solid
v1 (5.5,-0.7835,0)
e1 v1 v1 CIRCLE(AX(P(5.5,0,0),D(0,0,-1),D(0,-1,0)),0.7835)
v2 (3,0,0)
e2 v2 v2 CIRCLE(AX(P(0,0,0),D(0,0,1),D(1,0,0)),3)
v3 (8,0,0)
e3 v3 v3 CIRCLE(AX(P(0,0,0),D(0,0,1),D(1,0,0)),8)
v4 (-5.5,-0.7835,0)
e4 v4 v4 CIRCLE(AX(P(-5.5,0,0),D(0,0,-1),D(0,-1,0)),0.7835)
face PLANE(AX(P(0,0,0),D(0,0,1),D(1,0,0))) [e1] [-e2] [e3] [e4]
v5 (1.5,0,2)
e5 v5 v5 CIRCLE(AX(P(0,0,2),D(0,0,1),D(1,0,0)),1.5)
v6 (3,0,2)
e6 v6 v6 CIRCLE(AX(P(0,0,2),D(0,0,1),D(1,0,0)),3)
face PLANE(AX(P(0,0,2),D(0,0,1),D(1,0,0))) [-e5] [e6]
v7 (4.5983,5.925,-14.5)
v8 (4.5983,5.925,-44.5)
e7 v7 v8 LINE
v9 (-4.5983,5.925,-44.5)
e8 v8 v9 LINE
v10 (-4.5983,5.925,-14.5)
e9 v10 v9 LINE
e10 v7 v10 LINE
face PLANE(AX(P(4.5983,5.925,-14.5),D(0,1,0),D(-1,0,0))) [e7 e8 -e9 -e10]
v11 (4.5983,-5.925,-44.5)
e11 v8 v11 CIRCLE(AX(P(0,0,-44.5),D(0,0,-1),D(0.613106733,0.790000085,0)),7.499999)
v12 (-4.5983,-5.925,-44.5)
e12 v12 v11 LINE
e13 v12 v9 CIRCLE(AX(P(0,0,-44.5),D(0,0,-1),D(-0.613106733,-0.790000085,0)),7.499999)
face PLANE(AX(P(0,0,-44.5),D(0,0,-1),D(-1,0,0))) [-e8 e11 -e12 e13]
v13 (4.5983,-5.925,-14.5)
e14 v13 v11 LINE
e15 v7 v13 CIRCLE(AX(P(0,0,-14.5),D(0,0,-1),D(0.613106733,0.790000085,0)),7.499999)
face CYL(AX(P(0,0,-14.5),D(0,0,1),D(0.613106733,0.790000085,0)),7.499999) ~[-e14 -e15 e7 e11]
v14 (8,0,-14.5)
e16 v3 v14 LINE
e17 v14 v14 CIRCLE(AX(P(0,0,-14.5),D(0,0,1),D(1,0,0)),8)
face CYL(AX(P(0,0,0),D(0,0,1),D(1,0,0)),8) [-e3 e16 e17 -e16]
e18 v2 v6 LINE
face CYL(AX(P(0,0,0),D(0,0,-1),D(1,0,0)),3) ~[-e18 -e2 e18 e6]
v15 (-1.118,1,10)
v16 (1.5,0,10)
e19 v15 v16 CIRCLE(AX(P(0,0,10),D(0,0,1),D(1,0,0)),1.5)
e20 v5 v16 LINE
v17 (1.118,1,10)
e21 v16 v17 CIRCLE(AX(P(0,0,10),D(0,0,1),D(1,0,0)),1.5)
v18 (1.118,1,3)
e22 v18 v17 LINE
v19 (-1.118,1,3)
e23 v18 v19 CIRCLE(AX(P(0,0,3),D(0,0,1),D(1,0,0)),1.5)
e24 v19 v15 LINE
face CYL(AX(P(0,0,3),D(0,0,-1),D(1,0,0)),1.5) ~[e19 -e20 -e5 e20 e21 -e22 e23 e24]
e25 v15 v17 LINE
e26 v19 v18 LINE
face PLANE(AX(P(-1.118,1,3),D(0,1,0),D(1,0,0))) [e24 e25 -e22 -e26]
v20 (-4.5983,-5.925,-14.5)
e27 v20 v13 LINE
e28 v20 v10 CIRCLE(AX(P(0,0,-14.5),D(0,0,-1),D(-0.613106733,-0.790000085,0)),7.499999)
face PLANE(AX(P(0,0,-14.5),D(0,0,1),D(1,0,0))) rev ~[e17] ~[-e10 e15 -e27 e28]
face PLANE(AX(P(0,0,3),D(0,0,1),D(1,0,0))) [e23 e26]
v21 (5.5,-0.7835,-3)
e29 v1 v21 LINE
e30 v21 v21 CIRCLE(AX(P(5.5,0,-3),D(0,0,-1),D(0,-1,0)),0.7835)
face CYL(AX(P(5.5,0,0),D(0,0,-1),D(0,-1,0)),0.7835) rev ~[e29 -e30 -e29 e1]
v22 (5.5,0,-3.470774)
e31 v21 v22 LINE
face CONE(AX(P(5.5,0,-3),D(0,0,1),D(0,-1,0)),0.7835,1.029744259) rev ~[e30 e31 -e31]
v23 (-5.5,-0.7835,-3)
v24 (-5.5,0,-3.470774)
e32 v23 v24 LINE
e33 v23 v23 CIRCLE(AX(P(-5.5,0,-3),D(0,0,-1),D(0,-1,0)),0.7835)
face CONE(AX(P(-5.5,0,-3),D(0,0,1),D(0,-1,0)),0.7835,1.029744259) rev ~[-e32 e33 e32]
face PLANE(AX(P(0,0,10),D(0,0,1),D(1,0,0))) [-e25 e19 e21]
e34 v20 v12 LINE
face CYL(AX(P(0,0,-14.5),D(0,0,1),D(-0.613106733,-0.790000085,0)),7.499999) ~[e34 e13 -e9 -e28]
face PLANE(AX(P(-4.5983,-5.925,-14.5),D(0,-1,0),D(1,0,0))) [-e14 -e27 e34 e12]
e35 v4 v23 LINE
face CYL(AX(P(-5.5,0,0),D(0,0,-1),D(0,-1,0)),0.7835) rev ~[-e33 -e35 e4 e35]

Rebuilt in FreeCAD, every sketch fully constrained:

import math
import FreeCAD as App
import Part
import Sketcher
Q = App.Units.Quantity

doc = App.newDocument("Part")
body = doc.addObject("PartDesign::Body", "Body")

sketch1 = doc.addObject("Sketcher::SketchObject", "Sketch")
body.addObject(sketch1)
sketch1.AttachmentSupport = (doc.XY_Plane, [""])
sketch1.MapMode = "FlatFace"
sketch1.addGeometry(Part.Circle(App.Vector(0, 0, 0), App.Vector(0, 0, 1), 3), False)
sketch1.addConstraint([
    Sketcher.Constraint("Coincident", 0, 3, -1, 1),
    Sketcher.Constraint("Diameter", 0, Q("6 mm")),
])
pad1 = doc.addObject("PartDesign::Pad", "Pad")
body.addObject(pad1)
pad1.Profile = sketch1
pad1.Length = 2

sketch2 = doc.addObject("Sketcher::SketchObject", "Sketch001")
body.addObject(sketch2)
sketch2.AttachmentSupport = (doc.XY_Plane, [""])
sketch2.MapMode = "FlatFace"
sketch2.AttachmentOffset = App.Placement(App.Vector(0, 0, 2), App.Rotation())
sketch2.addGeometry(Part.Circle(App.Vector(0, 0, 0), App.Vector(0, 0, 1), 1.5), False)
sketch2.addConstraint([
    Sketcher.Constraint("Coincident", 0, 3, -1, 1),
    Sketcher.Constraint("Diameter", 0, Q("3 mm")),
])
pad2 = doc.addObject("PartDesign::Pad", "Pad001")
body.addObject(pad2)
pad2.Profile = sketch2
pad2.Length = 1

sketch3 = doc.addObject("Sketcher::SketchObject", "Sketch002")
body.addObject(sketch3)
sketch3.AttachmentSupport = (doc.XY_Plane, [""])
sketch3.MapMode = "FlatFace"
sketch3.AttachmentOffset = App.Placement(App.Vector(0, 0, 3), App.Rotation())
sketch3.addGeometry([
    Part.ArcOfCircle(Part.Circle(App.Vector(0, 0, 0), App.Vector(0, 0, 1), 1.5), math.radians(138), math.radians(402)),
    Part.LineSegment(App.Vector(-1.1, 1, 0), App.Vector(1.1, 1, 0)),
], False)
sketch3.addConstraint([
    Sketcher.Constraint("Coincident", 0, 1, 1, 1),
    Sketcher.Constraint("Coincident", 1, 2, 0, 2),
    Sketcher.Constraint("Horizontal", 1),
    Sketcher.Constraint("Coincident", 0, 3, -1, 1),
    Sketcher.Constraint("Radius", 0, Q("1.5 mm")),
    Sketcher.Constraint("DistanceY", -1, 1, 0, 1, Q("1 mm")),
])
pad3 = doc.addObject("PartDesign::Pad", "Pad002")
body.addObject(pad3)
pad3.Profile = sketch3
pad3.Length = 7

sketch4 = doc.addObject("Sketcher::SketchObject", "Sketch003")
body.addObject(sketch4)
sketch4.AttachmentSupport = (doc.XY_Plane, [""])
sketch4.MapMode = "FlatFace"
sketch4.addGeometry(Part.Circle(App.Vector(0, 0, 0), App.Vector(0, 0, 1), 8), False)
sketch4.addConstraint([
    Sketcher.Constraint("Coincident", 0, 3, -1, 1),
    Sketcher.Constraint("Diameter", 0, Q("16 mm")),
])
pad4 = doc.addObject("PartDesign::Pad", "Pad003")
body.addObject(pad4)
pad4.Profile = sketch4
pad4.Length = 14.5
pad4.Reversed = True

sketch5 = doc.addObject("Sketcher::SketchObject", "Sketch004")
body.addObject(sketch5)
sketch5.AttachmentSupport = (doc.XY_Plane, [""])
sketch5.MapMode = "FlatFace"
sketch5.AttachmentOffset = App.Placement(App.Vector(0, 0, -14.5), App.Rotation())
sketch5.addGeometry([
    Part.LineSegment(App.Vector(-5, 6, 0), App.Vector(5, 6, 0)),
    Part.ArcOfCircle(Part.Circle(App.Vector(0, 0, 0), App.Vector(0, 0, 1), 7), math.radians(-52), math.radians(52)),
    Part.LineSegment(App.Vector(5, -6, 0), App.Vector(-5, -6, 0)),
    Part.ArcOfCircle(Part.Circle(App.Vector(0, 0, 0), App.Vector(0, 0, 1), 7), math.radians(128), math.radians(232)),
], False)
sketch5.addConstraint([
    Sketcher.Constraint("Coincident", 0, 2, 1, 2),
    Sketcher.Constraint("Coincident", 1, 1, 2, 1),
    Sketcher.Constraint("Coincident", 2, 2, 3, 2),
    Sketcher.Constraint("Coincident", 3, 1, 0, 1),
    Sketcher.Constraint("Horizontal", 0),
    Sketcher.Constraint("Horizontal", 2),
    Sketcher.Constraint("Coincident", 1, 3, -1, 1),
    Sketcher.Constraint("Coincident", 3, 3, -1, 1),
    Sketcher.Constraint("Equal", 1, 3),
    Sketcher.Constraint("Vertical", 0, 2, 1, 1),
    Sketcher.Constraint("Radius", 1, Q("7.5 mm")),
    Sketcher.Constraint("DistanceY", 1, 1, 0, 2, Q("11.85 mm")),
])
pad5 = doc.addObject("PartDesign::Pad", "Pad004")
body.addObject(pad5)
pad5.Profile = sketch5
pad5.Length = 30
pad5.Reversed = True

sketch6 = doc.addObject("Sketcher::SketchObject", "Sketch005")
body.addObject(sketch6)
sketch6.AttachmentSupport = (doc.XY_Plane, [""])
sketch6.MapMode = "FlatFace"
sketch6.addGeometry([
    Part.Circle(App.Vector(-5.5, 0, 0), App.Vector(0, 0, 1), 0.8),
    Part.Circle(App.Vector(5.5, 0, 0), App.Vector(0, 0, 1), 0.8),
], False)
sketch6.addConstraint([
    Sketcher.Constraint("Equal", 0, 1),
    Sketcher.Constraint("Symmetric", 0, 3, 1, 3, -1, 1),
    Sketcher.Constraint("PointOnObject", 0, 3, -1),
    Sketcher.Constraint("Diameter", 0, Q("1.567 mm")),
    Sketcher.Constraint("DistanceX", 0, 3, 1, 3, Q("11 mm")),
])
doc.recompute()
hole = doc.addObject("PartDesign::Hole", "Hole")
body.addObject(hole)
hole.Profile = sketch6
hole.ThreadType = "None"
hole.Diameter = 1.567
hole.DepthType = "Dimension"
hole.Depth = 3
hole.DrillPoint = "Angled"
hole.DrillPointAngle = 118

doc.recompute()
